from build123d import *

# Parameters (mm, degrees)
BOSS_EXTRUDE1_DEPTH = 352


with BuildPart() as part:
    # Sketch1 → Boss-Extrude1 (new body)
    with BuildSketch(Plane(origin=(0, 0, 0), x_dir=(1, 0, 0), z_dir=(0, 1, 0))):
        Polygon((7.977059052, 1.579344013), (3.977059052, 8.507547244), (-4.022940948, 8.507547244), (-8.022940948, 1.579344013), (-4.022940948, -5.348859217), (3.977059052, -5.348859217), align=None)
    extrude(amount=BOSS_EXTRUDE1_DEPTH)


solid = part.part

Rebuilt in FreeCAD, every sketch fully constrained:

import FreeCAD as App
import Part
import Sketcher

V = App.Vector
Q = App.Units.Quantity


def add_polygon(sketch, points):
    """Adds a closed chain of lines whose ends are joined by coincident constraints."""
    first, n = sketch.GeometryCount, len(points)
    for a, b in zip(points, points[1:] + points[:1]):
        sketch.addGeometry(Part.LineSegment(App.Vector(*a, 0), App.Vector(*b, 0)), False)
    for i in range(n):
        sketch.addConstraint(Sketcher.Constraint("Coincident", first + i, 2, first + (i + 1) % n, 1))

doc = App.newDocument("Part")
body = doc.addObject("PartDesign::Body", "Body")

# Sketch on XZ plane
sketch1 = doc.addObject("Sketcher::SketchObject", "Sketch")
body.addObject(sketch1)
sketch1.AttachmentSupport = (doc.XZ_Plane, [""])
sketch1.MapMode = "FlatFace"
add_polygon(sketch1, [(8, -2), (4, -9), (-4, -9), (-8, -2), (-4, 5), (4, 5)])  # lines 0-5
sketch1.addConstraint([
    Sketcher.Constraint("Horizontal", 1),
    Sketcher.Constraint("Horizontal", 4),
    Sketcher.Constraint("Parallel", 0, 3),
    Sketcher.Constraint("Parallel", 2, 5),
    Sketcher.Constraint("Horizontal", 2, 2, 5, 2),
    Sketcher.Constraint("Vertical", 1, 2, 3, 2),
    Sketcher.Constraint("Vertical", 0, 2, 4, 2),
    Sketcher.Constraint("DistanceX", 1, 2, 1, 1, Q("8 mm")),
    Sketcher.Constraint("Angle", 0, Q("-120 deg")),
    Sketcher.Constraint("Distance", 0, Q("8 mm")),
    Sketcher.Constraint("DistanceX", -1, 1, 0, 2, Q("3.977059 mm")),
    Sketcher.Constraint("DistanceY", -1, 1, 3, 2, Q("5.348859 mm")),
])
pad1 = doc.addObject("PartDesign::Pad", "Pad")
body.addObject(pad1)
pad1.Profile = sketch1
pad1.Length = 352
pad1.Reversed = True

doc.recompute()
